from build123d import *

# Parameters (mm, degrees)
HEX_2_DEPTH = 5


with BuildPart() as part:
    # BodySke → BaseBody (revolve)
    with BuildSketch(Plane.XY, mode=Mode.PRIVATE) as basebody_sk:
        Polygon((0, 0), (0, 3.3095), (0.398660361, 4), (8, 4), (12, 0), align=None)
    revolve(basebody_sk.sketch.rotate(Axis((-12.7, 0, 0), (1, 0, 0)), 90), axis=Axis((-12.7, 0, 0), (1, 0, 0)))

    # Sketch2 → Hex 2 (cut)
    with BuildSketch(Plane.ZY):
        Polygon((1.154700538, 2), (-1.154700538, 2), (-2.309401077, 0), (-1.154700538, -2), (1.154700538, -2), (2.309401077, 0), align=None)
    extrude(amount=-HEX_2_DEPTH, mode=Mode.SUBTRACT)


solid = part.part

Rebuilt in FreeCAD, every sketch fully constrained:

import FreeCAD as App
import Part
import Sketcher

V = App.Vector
Q = App.Units.Quantity


def add_polygon(sketch, points):
    """Adds a closed chain of lines whose ends are joined by coincident constraints."""
    first, n = sketch.GeometryCount, len(points)
    for a, b in zip(points, points[1:] + points[:1]):
        sketch.addGeometry(Part.LineSegment(App.Vector(*a, 0), App.Vector(*b, 0)), False)
    for i in range(n):
        sketch.addConstraint(Sketcher.Constraint("Coincident", first + i, 2, first + (i + 1) % n, 1))

doc = App.newDocument("Part")
body = doc.addObject("PartDesign::Body", "Body")

sketch1 = doc.addObject("Sketcher::SketchObject", "Sketch")
body.addObject(sketch1)
sketch1.AttachmentSupport = (doc.XY_Plane, [""])
sketch1.MapMode = "FlatFace"
add_polygon(sketch1, [(0, 3.3095), (0, 0), (12, 0), (8, 4), (0.39866, 4)])
sketch1.addConstraint(Sketcher.Constraint("Vertical", 0))
sketch1.addConstraint(Sketcher.Constraint("Horizontal", 1))
sketch1.addConstraint(Sketcher.Constraint("Horizontal", 3))
sketch1.addConstraint(Sketcher.Constraint("Coincident", 0, 2, -1, 1))
sketch1.addConstraint(Sketcher.Constraint("DistanceX", 1, 1, 1, 2, 12.0))
sketch1.addConstraint(Sketcher.Constraint("Angle", 2, Q("135 deg")))
sketch1.addConstraint(Sketcher.Constraint("Angle", 4, Q("-120 deg")))
sketch1.addConstraint(Sketcher.Constraint("DistanceX", -1, 1, 2, 2, 8.0))
sketch1.addConstraint(Sketcher.Constraint("DistanceY", 0, 2, 0, 1, 3.3095))
revolution = doc.addObject("PartDesign::Revolution", "Revolution")
body.addObject(revolution)
revolution.Profile = sketch1
revolution.ReferenceAxis = (sketch1, ["H_Axis"])
revolution.Angle = 360

sketch2 = doc.addObject("Sketcher::SketchObject", "Sketch001")
body.addObject(sketch2)
sketch2.AttachmentSupport = (doc.YZ_Plane, [""])
sketch2.MapMode = "FlatFace"
add_polygon(sketch2, [(2, 1.154701), (2, -1.154701), (0, -2.309401), (-2, -1.154701), (-2, 1.154701), (0, 2.309401)])
sketch2.addConstraint(Sketcher.Constraint("Vertical", 0))
sketch2.addConstraint(Sketcher.Constraint("Vertical", 3))
sketch2.addConstraint(Sketcher.Constraint("Symmetric", 0, 2, 3, 2, -1, 1))
sketch2.addConstraint(Sketcher.Constraint("Symmetric", 1, 2, 4, 2, -1, 1))
sketch2.addConstraint(Sketcher.Constraint("PointOnObject", 1, 2, -2))
sketch2.addConstraint(Sketcher.Constraint("Parallel", 2, 5))
sketch2.addConstraint(Sketcher.Constraint("Horizontal", 0, 2, 2, 2))
sketch2.addConstraint(Sketcher.Constraint("Angle", 1, Q("-150 deg")))
sketch2.addConstraint(Sketcher.Constraint("DistanceX", -1, 1, 0, 2, 2.0))
sketch2.addConstraint(Sketcher.Constraint("DistanceY", 0, 2, 0, 1, 2.309401))
pocket1 = doc.addObject("PartDesign::Pocket", "Pocket")
body.addObject(pocket1)
pocket1.Profile = sketch2
pocket1.Length = 5
pocket1.Reversed = True

doc.recompute()
